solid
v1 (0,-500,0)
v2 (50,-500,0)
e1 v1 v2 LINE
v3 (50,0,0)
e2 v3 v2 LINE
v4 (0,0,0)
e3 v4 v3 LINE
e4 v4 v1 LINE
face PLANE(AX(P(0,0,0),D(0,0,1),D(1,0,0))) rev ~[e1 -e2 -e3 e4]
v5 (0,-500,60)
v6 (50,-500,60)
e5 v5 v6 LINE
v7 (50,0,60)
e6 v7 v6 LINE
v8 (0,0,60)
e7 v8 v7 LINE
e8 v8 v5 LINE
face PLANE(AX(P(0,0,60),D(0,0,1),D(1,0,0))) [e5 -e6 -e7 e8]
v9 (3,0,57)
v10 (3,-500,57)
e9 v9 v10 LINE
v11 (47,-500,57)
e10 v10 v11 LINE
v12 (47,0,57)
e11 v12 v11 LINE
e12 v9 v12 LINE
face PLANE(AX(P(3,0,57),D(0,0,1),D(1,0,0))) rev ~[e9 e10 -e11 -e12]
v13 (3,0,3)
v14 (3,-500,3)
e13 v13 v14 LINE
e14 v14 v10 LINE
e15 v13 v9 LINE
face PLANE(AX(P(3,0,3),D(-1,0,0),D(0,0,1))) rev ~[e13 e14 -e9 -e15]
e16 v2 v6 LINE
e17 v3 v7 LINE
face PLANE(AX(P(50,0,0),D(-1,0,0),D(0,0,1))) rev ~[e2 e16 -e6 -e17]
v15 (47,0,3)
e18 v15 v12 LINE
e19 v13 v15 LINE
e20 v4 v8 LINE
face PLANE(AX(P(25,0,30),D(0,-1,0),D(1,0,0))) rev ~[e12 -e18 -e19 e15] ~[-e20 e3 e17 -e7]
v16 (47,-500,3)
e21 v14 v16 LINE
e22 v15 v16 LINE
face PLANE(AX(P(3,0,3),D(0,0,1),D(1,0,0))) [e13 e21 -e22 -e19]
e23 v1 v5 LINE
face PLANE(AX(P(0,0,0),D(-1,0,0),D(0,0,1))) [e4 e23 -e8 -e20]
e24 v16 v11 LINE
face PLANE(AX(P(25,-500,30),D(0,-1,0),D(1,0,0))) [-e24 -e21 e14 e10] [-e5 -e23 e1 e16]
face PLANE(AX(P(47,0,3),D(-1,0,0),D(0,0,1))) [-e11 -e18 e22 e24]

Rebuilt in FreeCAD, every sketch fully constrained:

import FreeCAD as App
import Part
import Sketcher

V = App.Vector
Q = App.Units.Quantity


def add_polygon(sketch, points):
    """Adds a closed chain of lines whose ends are joined by coincident constraints."""
    first, n = sketch.GeometryCount, len(points)
    for a, b in zip(points, points[1:] + points[:1]):
        sketch.addGeometry(Part.LineSegment(App.Vector(*a, 0), App.Vector(*b, 0)), False)
    for i in range(n):
        sketch.addConstraint(Sketcher.Constraint("Coincident", first + i, 2, first + (i + 1) % n, 1))

doc = App.newDocument("Part")
params = doc.addObject("Spreadsheet::Sheet", "Params")
for row, (alias, value) in enumerate([
    ("sketch1_width", "50 mm"),
    ("sketch1_width2", "44 mm"),
    ("sketch1_height", "60 mm"),
    ("sketch1_height2", "54 mm"),
    ("pad1_length", "500 mm"),
], start=1):
    params.set(f"A{row}", alias)
    params.set(f"B{row}", "=" + value)
    params.setAlias(f"B{row}", alias)

body = doc.addObject("PartDesign::Body", "Body")

sketch1 = body.newObject("Sketcher::SketchObject", "Sketch")
sketch1.AttachmentSupport = (doc.getObject("XZ_Plane"), [""])
sketch1.MapMode = "FlatFace"
add_polygon(sketch1, [(0, 60), (0, 0), (50, 0), (50, 60)])
add_polygon(sketch1, [(47, 3), (3, 3), (3, 57), (47, 57)])
sketch1.addConstraint([
    Sketcher.Constraint("Vertical", 0),
    Sketcher.Constraint("Horizontal", 1),
    Sketcher.Constraint("Vertical", 2),
    Sketcher.Constraint("Horizontal", 3),
    Sketcher.Constraint("Horizontal", 4),
    Sketcher.Constraint("Vertical", 5),
    Sketcher.Constraint("Horizontal", 6),
    Sketcher.Constraint("Vertical", 7),
    Sketcher.Constraint("Coincident", 0, 2, -1, 1),
    Sketcher.Constraint("DistanceX", 1, 1, 1, 2, Q("50 mm")),
    Sketcher.Constraint("DistanceX", 4, 2, 4, 1, Q("44 mm")),
    Sketcher.Constraint("DistanceY", 0, 2, 0, 1, Q("60 mm")),
    Sketcher.Constraint("DistanceY", 5, 1, 5, 2, Q("54 mm")),
    Sketcher.Constraint("DistanceX", -1, 1, 4, 2, Q("3 mm")),
    Sketcher.Constraint("DistanceY", -1, 1, 4, 2, Q("3 mm")),
])
sketch1.setExpression("Constraints[17]", "Params.sketch1_width")
sketch1.setExpression("Constraints[18]", "Params.sketch1_width2")
sketch1.setExpression("Constraints[19]", "Params.sketch1_height")
sketch1.setExpression("Constraints[20]", "Params.sketch1_height2")
pad1 = body.newObject("PartDesign::Pad", "Pad")
pad1.Profile = sketch1
pad1.setExpression("Length", "Params.pad1_length")

doc.recompute()
